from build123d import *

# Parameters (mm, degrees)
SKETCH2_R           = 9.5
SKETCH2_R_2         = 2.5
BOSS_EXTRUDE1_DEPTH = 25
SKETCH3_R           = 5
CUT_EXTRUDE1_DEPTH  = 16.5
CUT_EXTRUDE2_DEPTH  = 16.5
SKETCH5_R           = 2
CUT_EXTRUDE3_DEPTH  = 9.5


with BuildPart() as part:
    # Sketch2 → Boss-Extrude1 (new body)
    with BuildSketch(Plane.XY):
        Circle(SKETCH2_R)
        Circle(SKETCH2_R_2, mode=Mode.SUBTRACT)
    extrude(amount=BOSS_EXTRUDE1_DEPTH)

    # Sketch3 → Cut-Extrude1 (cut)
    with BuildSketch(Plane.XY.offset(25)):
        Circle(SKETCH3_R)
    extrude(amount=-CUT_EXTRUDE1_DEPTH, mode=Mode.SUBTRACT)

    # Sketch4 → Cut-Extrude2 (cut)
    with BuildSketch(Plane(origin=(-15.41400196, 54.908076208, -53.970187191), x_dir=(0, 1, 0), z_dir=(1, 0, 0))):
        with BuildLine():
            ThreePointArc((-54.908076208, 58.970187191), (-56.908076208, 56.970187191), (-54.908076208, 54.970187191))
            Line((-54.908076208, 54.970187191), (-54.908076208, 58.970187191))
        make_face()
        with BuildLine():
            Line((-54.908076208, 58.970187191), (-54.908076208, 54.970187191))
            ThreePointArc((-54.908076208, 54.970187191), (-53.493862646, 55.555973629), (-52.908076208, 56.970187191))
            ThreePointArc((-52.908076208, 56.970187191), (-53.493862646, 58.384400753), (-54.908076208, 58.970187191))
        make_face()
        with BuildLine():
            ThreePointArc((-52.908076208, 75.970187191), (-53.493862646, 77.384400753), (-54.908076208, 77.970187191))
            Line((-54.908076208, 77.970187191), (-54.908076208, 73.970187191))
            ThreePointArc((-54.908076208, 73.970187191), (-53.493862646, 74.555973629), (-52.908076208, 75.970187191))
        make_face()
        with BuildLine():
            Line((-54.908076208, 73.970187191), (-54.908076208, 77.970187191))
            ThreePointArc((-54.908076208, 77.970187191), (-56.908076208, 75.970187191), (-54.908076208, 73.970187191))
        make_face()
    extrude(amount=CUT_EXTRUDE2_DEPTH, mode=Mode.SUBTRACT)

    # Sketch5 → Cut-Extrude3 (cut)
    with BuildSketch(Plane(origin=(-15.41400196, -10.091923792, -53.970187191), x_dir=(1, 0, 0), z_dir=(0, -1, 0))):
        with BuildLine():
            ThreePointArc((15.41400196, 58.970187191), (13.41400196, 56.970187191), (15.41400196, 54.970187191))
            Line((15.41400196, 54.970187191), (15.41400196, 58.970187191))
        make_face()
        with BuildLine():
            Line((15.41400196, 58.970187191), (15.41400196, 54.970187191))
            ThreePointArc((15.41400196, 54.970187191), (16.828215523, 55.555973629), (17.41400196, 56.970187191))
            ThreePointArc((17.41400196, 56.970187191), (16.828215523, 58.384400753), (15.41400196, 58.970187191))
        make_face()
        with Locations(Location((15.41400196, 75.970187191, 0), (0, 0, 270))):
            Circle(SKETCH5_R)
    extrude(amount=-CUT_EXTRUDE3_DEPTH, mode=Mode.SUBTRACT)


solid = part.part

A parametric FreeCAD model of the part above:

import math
import FreeCAD as App
import Part
import Sketcher
Q = App.Units.Quantity

doc = App.newDocument("Part")
params = doc.addObject("Spreadsheet::Sheet", "Params")
for row, (alias, value) in enumerate([
    ("sketch1_diameter", "19 mm"),
    ("sketch1_diameter2", "5 mm"),
    ("pad1_length", "25 mm"),
    ("sketch2_diameter", "10 mm"),
    ("pocket1_length", "16.5 mm"),
    ("sketch3_radius", "2 mm"),
    ("pocket2_length", "16.5 mm"),
    ("sketch4_diameter", "4 mm"),
    ("pocket3_length", "9.5 mm"),
], start=1):
    params.set(f"A{row}", alias)
    params.set(f"B{row}", "=" + value)
    params.setAlias(f"B{row}", alias)

body = doc.addObject("PartDesign::Body", "Body")

# Sketch on XY plane
sketch1 = body.newObject("Sketcher::SketchObject", "Sketch")
sketch1.AttachmentSupport = (doc.getObject("XY_Plane"), [""])
sketch1.MapMode = "FlatFace"
sketch1.addGeometry(Part.Circle(App.Vector(0, 0, 0), App.Vector(0, 0, 1), 9.5), False)
sketch1.addGeometry(Part.Circle(App.Vector(0, 0, 0), App.Vector(0, 0, 1), 2.5), False)
sketch1.addConstraint(Sketcher.Constraint("Coincident", 0, 3, -1, 1))
sketch1.addConstraint(Sketcher.Constraint("Coincident", 1, 3, -1, 1))
sketch1.addConstraint(Sketcher.Constraint("Diameter", 0, Q("19 mm")))
sketch1.addConstraint(Sketcher.Constraint("Diameter", 1, Q("5 mm")))
sketch1.setExpression("Constraints[2]", "Params.sketch1_diameter")
sketch1.setExpression("Constraints[3]", "Params.sketch1_diameter2")
pad1 = body.newObject("PartDesign::Pad", "Pad")
pad1.Profile = sketch1
pad1.setExpression("Length", "Params.pad1_length")

# Sketch on XY plane
sketch2 = body.newObject("Sketcher::SketchObject", "Sketch001")
sketch2.AttachmentSupport = (doc.getObject("XY_Plane"), [""])
sketch2.MapMode = "FlatFace"
sketch2.AttachmentOffset = App.Placement(App.Vector(0, 0, 25), App.Rotation())
sketch2.addGeometry(Part.Circle(App.Vector(0, 0, 0), App.Vector(0, 0, 1), 5), False)
sketch2.addConstraint(Sketcher.Constraint("Coincident", 0, 3, -1, 1))
sketch2.addConstraint(Sketcher.Constraint("Diameter", 0, Q("10 mm")))
sketch2.setExpression("Constraints[1]", "Params.sketch2_diameter")
pocket1 = body.newObject("PartDesign::Pocket", "Pocket")
pocket1.Profile = sketch2
pocket1.setExpression("Length", "Params.pocket1_length")

# Sketch on YZ plane
sketch3 = body.newObject("Sketcher::SketchObject", "Sketch002")
sketch3.AttachmentSupport = (doc.getObject("YZ_Plane"), [""])
sketch3.MapMode = "FlatFace"
sketch3.AttachmentOffset = App.Placement(App.Vector(0, 0, -15.414002), App.Rotation())
sketch3.addGeometry(Part.ArcOfCircle(Part.Circle(App.Vector(0, 3, 0), App.Vector(0, 0, 1), 2), math.radians(90), math.radians(270)), False)
sketch3.addGeometry(Part.ArcOfCircle(Part.Circle(App.Vector(0, 3, 0), App.Vector(0, 0, 1), 2), math.radians(-90), math.radians(0)), False)
sketch3.addGeometry(Part.ArcOfCircle(Part.Circle(App.Vector(0, 3, 0), App.Vector(0, 0, 1), 2), math.radians(0), math.radians(90)), False)
sketch3.addGeometry(Part.ArcOfCircle(Part.Circle(App.Vector(0, 22, 0), App.Vector(0, 0, 1), 2), math.radians(0), math.radians(90)), False)
sketch3.addGeometry(Part.ArcOfCircle(Part.Circle(App.Vector(0, 22, 0), App.Vector(0, 0, 1), 2), math.radians(90), math.radians(270)), False)
sketch3.addGeometry(Part.ArcOfCircle(Part.Circle(App.Vector(0, 22, 0), App.Vector(0, 0, 1), 2), math.radians(-90), math.radians(0)), False)
sketch3.addConstraint(Sketcher.Constraint("Tangent", 0, 2, 1, 1))
sketch3.addConstraint(Sketcher.Constraint("Tangent", 1, 2, 2, 1))
sketch3.addConstraint(Sketcher.Constraint("Tangent", 2, 2, 0, 1))
sketch3.addConstraint(Sketcher.Constraint("Tangent", 3, 2, 4, 1))
sketch3.addConstraint(Sketcher.Constraint("Tangent", 4, 2, 5, 1))
sketch3.addConstraint(Sketcher.Constraint("Tangent", 5, 2, 3, 1))
sketch3.addConstraint(Sketcher.Constraint("Equal", 2, 3))
sketch3.addConstraint(Sketcher.Constraint("PointOnObject", 0, 3, -2))
sketch3.addConstraint(Sketcher.Constraint("PointOnObject", 3, 3, -2))
sketch3.addConstraint(Sketcher.Constraint("PointOnObject", 0, 2, -2))
sketch3.addConstraint(Sketcher.Constraint("PointOnObject", 2, 2, -2))
sketch3.addConstraint(Sketcher.Constraint("PointOnObject", 3, 2, -2))
sketch3.addConstraint(Sketcher.Constraint("PointOnObject", 4, 2, -2))
sketch3.addConstraint(Sketcher.Constraint("Horizontal", 2, 3, 1, 2))
sketch3.addConstraint(Sketcher.Constraint("Horizontal", 4, 3, 5, 2))
sketch3.addConstraint(Sketcher.Constraint("Radius", 0, Q("2 mm")))
sketch3.addConstraint(Sketcher.Constraint("DistanceY", -1, 1, 0, 3, Q("3 mm")))
sketch3.addConstraint(Sketcher.Constraint("DistanceY", -1, 1, 3, 3, Q("22 mm")))
sketch3.setExpression("Constraints[15]", "Params.sketch3_radius")
pocket2 = body.newObject("PartDesign::Pocket", "Pocket001")
pocket2.Profile = sketch3
pocket2.setExpression("Length", "Params.pocket2_length")
pocket2.Reversed = True

# Sketch on XZ plane
sketch4 = body.newObject("Sketcher::SketchObject", "Sketch003")
sketch4.AttachmentSupport = (doc.getObject("XZ_Plane"), [""])
sketch4.MapMode = "FlatFace"
sketch4.AttachmentOffset = App.Placement(App.Vector(0, 0, 10.091924), App.Rotation())
sketch4.addGeometry(Part.ArcOfCircle(Part.Circle(App.Vector(0, 3, 0), App.Vector(0, 0, 1), 2), math.radians(90), math.radians(270)), False)
sketch4.addGeometry(Part.ArcOfCircle(Part.Circle(App.Vector(0, 3, 0), App.Vector(0, 0, 1), 2), math.radians(-90), math.radians(0)), False)
sketch4.addGeometry(Part.ArcOfCircle(Part.Circle(App.Vector(0, 3, 0), App.Vector(0, 0, 1), 2), math.radians(0), math.radians(90)), False)
sketch4.addGeometry(Part.Circle(App.Vector(0, 22, 0), App.Vector(0, 0, 1), 2), False)
sketch4.addConstraint(Sketcher.Constraint("Tangent", 0, 2, 1, 1))
sketch4.addConstraint(Sketcher.Constraint("Tangent", 1, 2, 2, 1))
sketch4.addConstraint(Sketcher.Constraint("Tangent", 2, 2, 0, 1))
sketch4.addConstraint(Sketcher.Constraint("Equal", 2, 3))
sketch4.addConstraint(Sketcher.Constraint("PointOnObject", 0, 3, -2))
sketch4.addConstraint(Sketcher.Constraint("PointOnObject", 3, 3, -2))
sketch4.addConstraint(Sketcher.Constraint("PointOnObject", 0, 2, -2))
sketch4.addConstraint(Sketcher.Constraint("PointOnObject", 2, 2, -2))
sketch4.addConstraint(Sketcher.Constraint("Horizontal", 2, 3, 1, 2))
sketch4.addConstraint(Sketcher.Constraint("Diameter", 3, Q("4 mm")))
sketch4.addConstraint(Sketcher.Constraint("DistanceY", -1, 1, 0, 3, Q("3 mm")))
sketch4.addConstraint(Sketcher.Constraint("DistanceY", -1, 1, 3, 3, Q("22 mm")))
sketch4.setExpression("Constraints[9]", "Params.sketch4_diameter")
pocket3 = body.newObject("PartDesign::Pocket", "Pocket002")
pocket3.Profile = sketch4
pocket3.setExpression("Length", "Params.pocket3_length")

doc.recompute()
